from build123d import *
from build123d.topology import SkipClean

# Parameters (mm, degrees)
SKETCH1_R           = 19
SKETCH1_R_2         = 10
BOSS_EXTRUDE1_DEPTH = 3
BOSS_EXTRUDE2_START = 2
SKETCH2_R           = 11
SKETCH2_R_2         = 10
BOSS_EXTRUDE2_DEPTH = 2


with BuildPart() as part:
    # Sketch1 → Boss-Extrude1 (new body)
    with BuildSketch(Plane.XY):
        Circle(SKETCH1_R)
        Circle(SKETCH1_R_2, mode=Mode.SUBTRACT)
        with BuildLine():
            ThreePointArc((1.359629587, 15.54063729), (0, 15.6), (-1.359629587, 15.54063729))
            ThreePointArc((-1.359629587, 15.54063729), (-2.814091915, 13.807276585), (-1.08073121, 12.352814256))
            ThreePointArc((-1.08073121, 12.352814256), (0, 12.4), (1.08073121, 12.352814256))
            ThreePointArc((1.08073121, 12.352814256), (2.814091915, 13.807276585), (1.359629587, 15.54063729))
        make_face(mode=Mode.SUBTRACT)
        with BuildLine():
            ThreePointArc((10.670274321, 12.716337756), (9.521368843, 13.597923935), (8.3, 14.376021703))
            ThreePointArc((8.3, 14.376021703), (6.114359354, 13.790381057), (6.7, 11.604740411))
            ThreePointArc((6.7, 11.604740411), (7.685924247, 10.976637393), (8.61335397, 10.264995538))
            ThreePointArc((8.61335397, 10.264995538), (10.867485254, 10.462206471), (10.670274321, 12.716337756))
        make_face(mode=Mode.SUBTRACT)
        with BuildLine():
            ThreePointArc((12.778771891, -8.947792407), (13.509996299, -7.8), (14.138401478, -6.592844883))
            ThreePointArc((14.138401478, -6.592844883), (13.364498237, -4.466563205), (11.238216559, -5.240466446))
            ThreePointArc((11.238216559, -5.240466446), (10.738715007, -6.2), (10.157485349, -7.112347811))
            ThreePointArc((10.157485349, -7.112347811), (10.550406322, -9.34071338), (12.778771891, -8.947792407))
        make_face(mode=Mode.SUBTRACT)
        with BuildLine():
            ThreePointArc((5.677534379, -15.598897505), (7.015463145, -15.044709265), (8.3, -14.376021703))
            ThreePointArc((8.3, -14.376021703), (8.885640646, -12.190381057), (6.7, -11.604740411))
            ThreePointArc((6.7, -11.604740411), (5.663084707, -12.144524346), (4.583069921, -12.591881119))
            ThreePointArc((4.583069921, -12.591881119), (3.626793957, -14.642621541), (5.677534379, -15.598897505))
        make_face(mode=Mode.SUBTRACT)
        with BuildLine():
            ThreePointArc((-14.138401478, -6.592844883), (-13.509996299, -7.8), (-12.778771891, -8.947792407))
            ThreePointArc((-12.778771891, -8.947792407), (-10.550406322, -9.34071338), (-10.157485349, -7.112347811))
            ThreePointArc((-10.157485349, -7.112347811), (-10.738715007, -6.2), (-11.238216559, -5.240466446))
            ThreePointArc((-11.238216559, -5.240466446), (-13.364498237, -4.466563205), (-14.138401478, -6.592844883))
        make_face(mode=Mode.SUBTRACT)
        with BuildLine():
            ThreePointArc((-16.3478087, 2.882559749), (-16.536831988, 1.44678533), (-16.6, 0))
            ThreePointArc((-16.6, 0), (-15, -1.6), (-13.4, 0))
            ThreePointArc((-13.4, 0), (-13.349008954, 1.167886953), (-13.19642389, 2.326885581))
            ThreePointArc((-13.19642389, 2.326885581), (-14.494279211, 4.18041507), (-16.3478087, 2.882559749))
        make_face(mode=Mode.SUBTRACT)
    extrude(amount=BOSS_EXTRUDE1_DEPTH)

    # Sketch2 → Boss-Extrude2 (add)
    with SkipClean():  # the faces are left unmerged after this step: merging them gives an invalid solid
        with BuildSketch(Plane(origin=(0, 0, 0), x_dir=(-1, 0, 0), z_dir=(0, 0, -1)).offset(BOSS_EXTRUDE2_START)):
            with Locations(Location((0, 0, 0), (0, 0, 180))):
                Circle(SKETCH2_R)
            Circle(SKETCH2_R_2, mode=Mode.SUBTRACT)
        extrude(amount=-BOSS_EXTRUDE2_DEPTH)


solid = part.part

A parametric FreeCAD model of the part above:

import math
import FreeCAD as App
import Part
import Sketcher

V = App.Vector

doc = App.newDocument("Part")
body = doc.addObject("PartDesign::Body", "Body")

sketch1 = body.newObject("Sketcher::SketchObject", "Sketch")
sketch1.AttachmentSupport = (doc.getObject("XY_Plane"), [""])
sketch1.MapMode = "FlatFace"
sketch1.addGeometry(Part.Circle(V(0, 0, 0), V(0, 0, 1), 19), False)
sketch1.addGeometry(Part.ArcOfCircle(Part.Circle(V(0, 0, 0), V(0, 0, 1), 15.6), math.radians(-155), math.radians(-145)), False)
sketch1.addGeometry(Part.ArcOfCircle(Part.Circle(V(-12.7, -5.9, 0), V(0, 0, 1), 1.6), math.radians(25), math.radians(205)), False)
sketch1.addGeometry(Part.ArcOfCircle(Part.Circle(V(0, 0, 0), V(0, 0, 1), 12.4), math.radians(-155), math.radians(-145)), False)
sketch1.addGeometry(Part.ArcOfCircle(Part.Circle(V(-11.5, -8, 0), V(0, 0, 1), 1.6), math.radians(-145), math.radians(35)), False)
sketch1.addGeometry(Part.ArcOfCircle(Part.Circle(V(0, 0, 0), V(0, 0, 1), 16.6), math.radians(-70), math.radians(-60)), False)
sketch1.addGeometry(Part.ArcOfCircle(Part.Circle(V(5.1, -14.1, 0), V(0, 0, 1), 1.6), math.radians(110), math.radians(290)), False)
sketch1.addGeometry(Part.ArcOfCircle(Part.Circle(V(0, 0, 0), V(0, 0, 1), 13.4), math.radians(-70), math.radians(-60)), False)
sketch1.addGeometry(Part.ArcOfCircle(Part.Circle(V(7.5, -13, 0), V(0, 0, 1), 1.6), math.radians(-60), math.radians(120)), False)
sketch1.addGeometry(Part.ArcOfCircle(Part.Circle(V(0, 0, 0), V(0, 0, 1), 15.6), math.radians(-35), math.radians(-25)), False)
sketch1.addGeometry(Part.ArcOfCircle(Part.Circle(V(11.5, -8, 0), V(0, 0, 1), 1.6), math.radians(145), math.radians(325)), False)
sketch1.addGeometry(Part.ArcOfCircle(Part.Circle(V(0, 0, 0), V(0, 0, 1), 12.4), math.radians(-35), math.radians(-25)), False)
sketch1.addGeometry(Part.ArcOfCircle(Part.Circle(V(12.7, -5.9, 0), V(0, 0, 1), 1.6), math.radians(-25), math.radians(155)), False)
sketch1.addGeometry(Part.ArcOfCircle(Part.Circle(V(0, 0, 0), V(0, 0, 1), 16.6), math.radians(170), math.radians(180)), False)
sketch1.addGeometry(Part.ArcOfCircle(Part.Circle(V(-14.8, 2.6, 0), V(0, 0, 1), 1.6), math.radians(-10), math.radians(170)), False)
sketch1.addGeometry(Part.ArcOfCircle(Part.Circle(V(0, 0, 0), V(0, 0, 1), 13.4), math.radians(170), math.radians(180)), False)
sketch1.addGeometry(Part.ArcOfCircle(Part.Circle(V(-15, 0, 0), V(0, 0, 1), 1.6), math.radians(180), math.radians(360)), False)
sketch1.addGeometry(Part.Circle(V(0, 0, 0), V(0, 0, 1), 10), False)
sketch1.addGeometry(Part.ArcOfCircle(Part.Circle(V(0, 0, 0), V(0, 0, 1), 15.6), math.radians(85), math.radians(95)), False)
sketch1.addGeometry(Part.ArcOfCircle(Part.Circle(V(1.2, 13.9, 0), V(0, 0, 1), 1.6), math.radians(-95), math.radians(85)), False)
sketch1.addGeometry(Part.ArcOfCircle(Part.Circle(V(0, 0, 0), V(0, 0, 1), 12.4), math.radians(85), math.radians(95)), False)
sketch1.addGeometry(Part.ArcOfCircle(Part.Circle(V(-1.2, 13.9, 0), V(0, 0, 1), 1.6), math.radians(95), math.radians(275)), False)
sketch1.addGeometry(Part.ArcOfCircle(Part.Circle(V(0, 0, 0), V(0, 0, 1), 16.6), math.radians(50), math.radians(60)), False)
sketch1.addGeometry(Part.ArcOfCircle(Part.Circle(V(9.6, 11.5, 0), V(0, 0, 1), 1.6), math.radians(-130), math.radians(50)), False)
sketch1.addGeometry(Part.ArcOfCircle(Part.Circle(V(0, 0, 0), V(0, 0, 1), 13.4), math.radians(50), math.radians(60)), False)
sketch1.addGeometry(Part.ArcOfCircle(Part.Circle(V(7.5, 13, 0), V(0, 0, 1), 1.6), math.radians(60), math.radians(240)), False)
sketch1.addConstraint(Sketcher.Constraint("Tangent", 1, 1, 2, 2))
sketch1.addConstraint(Sketcher.Constraint("Tangent", 2, 1, 3, 1))
sketch1.addConstraint(Sketcher.Constraint("Tangent", 3, 2, 4, 2))
sketch1.addConstraint(Sketcher.Constraint("Tangent", 4, 1, 1, 2))
sketch1.addConstraint(Sketcher.Constraint("Tangent", 5, 1, 6, 2))
sketch1.addConstraint(Sketcher.Constraint("Tangent", 6, 1, 7, 1))
sketch1.addConstraint(Sketcher.Constraint("Tangent", 7, 2, 8, 2))
sketch1.addConstraint(Sketcher.Constraint("Tangent", 8, 1, 5, 2))
sketch1.addConstraint(Sketcher.Constraint("Tangent", 9, 1, 10, 2))
sketch1.addConstraint(Sketcher.Constraint("Tangent", 10, 1, 11, 1))
sketch1.addConstraint(Sketcher.Constraint("Tangent", 11, 2, 12, 2))
sketch1.addConstraint(Sketcher.Constraint("Tangent", 12, 1, 9, 2))
sketch1.addConstraint(Sketcher.Constraint("Tangent", 13, 1, 14, 2))
sketch1.addConstraint(Sketcher.Constraint("Tangent", 14, 1, 15, 1))
sketch1.addConstraint(Sketcher.Constraint("Tangent", 15, 2, 16, 2))
sketch1.addConstraint(Sketcher.Constraint("Tangent", 16, 1, 13, 2))
sketch1.addConstraint(Sketcher.Constraint("Tangent", 18, 1, 19, 2))
sketch1.addConstraint(Sketcher.Constraint("Tangent", 19, 1, 20, 1))
sketch1.addConstraint(Sketcher.Constraint("Tangent", 20, 2, 21, 2))
sketch1.addConstraint(Sketcher.Constraint("Tangent", 21, 1, 18, 2))
sketch1.addConstraint(Sketcher.Constraint("Tangent", 22, 1, 23, 2))
sketch1.addConstraint(Sketcher.Constraint("Tangent", 23, 1, 24, 1))
sketch1.addConstraint(Sketcher.Constraint("Tangent", 24, 2, 25, 2))
sketch1.addConstraint(Sketcher.Constraint("Tangent", 25, 1, 22, 2))
sketch1.addConstraint(Sketcher.Constraint("Coincident", 0, 3, -1, 1))
sketch1.addConstraint(Sketcher.Constraint("Coincident", 1, 3, -1, 1))
sketch1.addConstraint(Sketcher.Constraint("Coincident", 3, 3, -1, 1))
sketch1.addConstraint(Sketcher.Constraint("Coincident", 5, 3, -1, 1))
sketch1.addConstraint(Sketcher.Constraint("Coincident", 7, 3, -1, 1))
sketch1.addConstraint(Sketcher.Constraint("Coincident", 9, 3, -1, 1))
sketch1.addConstraint(Sketcher.Constraint("Coincident", 11, 3, -1, 1))
sketch1.addConstraint(Sketcher.Constraint("Coincident", 13, 3, -1, 1))
sketch1.addConstraint(Sketcher.Constraint("Coincident", 15, 3, -1, 1))
sketch1.addConstraint(Sketcher.Constraint("Coincident", 17, 3, -1, 1))
sketch1.addConstraint(Sketcher.Constraint("Coincident", 18, 3, -1, 1))
sketch1.addConstraint(Sketcher.Constraint("Coincident", 20, 3, -1, 1))
sketch1.addConstraint(Sketcher.Constraint("Coincident", 22, 3, -1, 1))
sketch1.addConstraint(Sketcher.Constraint("Coincident", 24, 3, -1, 1))
sketch1.addConstraint(Sketcher.Constraint("Equal", 4, 6))
sketch1.addConstraint(Sketcher.Constraint("Equal", 1, 9))
sketch1.addConstraint(Sketcher.Constraint("Equal", 8, 10))
sketch1.addConstraint(Sketcher.Constraint("Equal", 5, 13))
sketch1.addConstraint(Sketcher.Constraint("Equal", 12, 14))
sketch1.addConstraint(Sketcher.Constraint("Equal", 9, 18))
sketch1.addConstraint(Sketcher.Constraint("Equal", 16, 19))
sketch1.addConstraint(Sketcher.Constraint("Equal", 13, 22))
sketch1.addConstraint(Sketcher.Constraint("Equal", 21, 23))
sketch1.addConstraint(Sketcher.Constraint("PointOnObject", 16, 3, -1))
sketch1.addConstraint(Sketcher.Constraint("Horizontal", 4, 3, 10, 3))
sketch1.addConstraint(Sketcher.Constraint("Horizontal", 2, 3, 12, 3))
sketch1.addConstraint(Sketcher.Constraint("Horizontal", 19, 3, 21, 3))
sketch1.addConstraint(Sketcher.Constraint("Vertical", 8, 3, 25, 3))
sketch1.addConstraint(Sketcher.Constraint("Diameter", 0, 38.0))
sketch1.addConstraint(Sketcher.Constraint("Diameter", 17, 20.0))
sketch1.addConstraint(Sketcher.Constraint("Radius", 1, 15.6))
sketch1.addConstraint(Sketcher.Constraint("Radius", 2, 1.6))
sketch1.addConstraint(Sketcher.Constraint("Radius", 5, 16.6))
sketch1.addConstraint(Sketcher.Constraint("DistanceX", -1, 1, 8, 3, 7.5))
sketch1.addConstraint(Sketcher.Constraint("DistanceX", 1, 1, -1, 1, 14.138401))
sketch1.addConstraint(Sketcher.Constraint("DistanceX", 14, 3, 2, 1, 3.5339))
sketch1.addConstraint(Sketcher.Constraint("DistanceY", 8, 3, 6, 1, 0.3985))
sketch1.addConstraint(Sketcher.Constraint("DistanceX", 19, 1, 18, 1, 0.278898))
sketch1.addConstraint(Sketcher.Constraint("DistanceY", 22, 1, 18, 1, 2.8243))
sketch1.addConstraint(Sketcher.Constraint("DistanceX", 4, 3, -1, 1, 11.468129))
pad1 = body.newObject("PartDesign::Pad", "Pad")
pad1.Profile = sketch1
pad1.Length = 3

sketch2 = body.newObject("Sketcher::SketchObject", "Sketch001")
sketch2.AttachmentSupport = (doc.getObject("XY_Plane"), [""])
sketch2.MapMode = "FlatFace"
sketch2.AttachmentOffset = App.Placement(V(0, 0, -2), App.Rotation())
sketch2.addGeometry(Part.Circle(V(0, 0, 0), V(0, 0, 1), 11), False)
sketch2.addGeometry(Part.Circle(V(0, 0, 0), V(0, 0, 1), 10), False)
sketch2.addConstraint(Sketcher.Constraint("Coincident", 0, 3, -1, 1))
sketch2.addConstraint(Sketcher.Constraint("Coincident", 1, 3, -1, 1))
sketch2.addConstraint(Sketcher.Constraint("Diameter", 0, 22.0))
sketch2.addConstraint(Sketcher.Constraint("Diameter", 1, 20.0))
pad2 = body.newObject("PartDesign::Pad", "Pad001")
pad2.Profile = sketch2
pad2.Length = 2

doc.recompute()
